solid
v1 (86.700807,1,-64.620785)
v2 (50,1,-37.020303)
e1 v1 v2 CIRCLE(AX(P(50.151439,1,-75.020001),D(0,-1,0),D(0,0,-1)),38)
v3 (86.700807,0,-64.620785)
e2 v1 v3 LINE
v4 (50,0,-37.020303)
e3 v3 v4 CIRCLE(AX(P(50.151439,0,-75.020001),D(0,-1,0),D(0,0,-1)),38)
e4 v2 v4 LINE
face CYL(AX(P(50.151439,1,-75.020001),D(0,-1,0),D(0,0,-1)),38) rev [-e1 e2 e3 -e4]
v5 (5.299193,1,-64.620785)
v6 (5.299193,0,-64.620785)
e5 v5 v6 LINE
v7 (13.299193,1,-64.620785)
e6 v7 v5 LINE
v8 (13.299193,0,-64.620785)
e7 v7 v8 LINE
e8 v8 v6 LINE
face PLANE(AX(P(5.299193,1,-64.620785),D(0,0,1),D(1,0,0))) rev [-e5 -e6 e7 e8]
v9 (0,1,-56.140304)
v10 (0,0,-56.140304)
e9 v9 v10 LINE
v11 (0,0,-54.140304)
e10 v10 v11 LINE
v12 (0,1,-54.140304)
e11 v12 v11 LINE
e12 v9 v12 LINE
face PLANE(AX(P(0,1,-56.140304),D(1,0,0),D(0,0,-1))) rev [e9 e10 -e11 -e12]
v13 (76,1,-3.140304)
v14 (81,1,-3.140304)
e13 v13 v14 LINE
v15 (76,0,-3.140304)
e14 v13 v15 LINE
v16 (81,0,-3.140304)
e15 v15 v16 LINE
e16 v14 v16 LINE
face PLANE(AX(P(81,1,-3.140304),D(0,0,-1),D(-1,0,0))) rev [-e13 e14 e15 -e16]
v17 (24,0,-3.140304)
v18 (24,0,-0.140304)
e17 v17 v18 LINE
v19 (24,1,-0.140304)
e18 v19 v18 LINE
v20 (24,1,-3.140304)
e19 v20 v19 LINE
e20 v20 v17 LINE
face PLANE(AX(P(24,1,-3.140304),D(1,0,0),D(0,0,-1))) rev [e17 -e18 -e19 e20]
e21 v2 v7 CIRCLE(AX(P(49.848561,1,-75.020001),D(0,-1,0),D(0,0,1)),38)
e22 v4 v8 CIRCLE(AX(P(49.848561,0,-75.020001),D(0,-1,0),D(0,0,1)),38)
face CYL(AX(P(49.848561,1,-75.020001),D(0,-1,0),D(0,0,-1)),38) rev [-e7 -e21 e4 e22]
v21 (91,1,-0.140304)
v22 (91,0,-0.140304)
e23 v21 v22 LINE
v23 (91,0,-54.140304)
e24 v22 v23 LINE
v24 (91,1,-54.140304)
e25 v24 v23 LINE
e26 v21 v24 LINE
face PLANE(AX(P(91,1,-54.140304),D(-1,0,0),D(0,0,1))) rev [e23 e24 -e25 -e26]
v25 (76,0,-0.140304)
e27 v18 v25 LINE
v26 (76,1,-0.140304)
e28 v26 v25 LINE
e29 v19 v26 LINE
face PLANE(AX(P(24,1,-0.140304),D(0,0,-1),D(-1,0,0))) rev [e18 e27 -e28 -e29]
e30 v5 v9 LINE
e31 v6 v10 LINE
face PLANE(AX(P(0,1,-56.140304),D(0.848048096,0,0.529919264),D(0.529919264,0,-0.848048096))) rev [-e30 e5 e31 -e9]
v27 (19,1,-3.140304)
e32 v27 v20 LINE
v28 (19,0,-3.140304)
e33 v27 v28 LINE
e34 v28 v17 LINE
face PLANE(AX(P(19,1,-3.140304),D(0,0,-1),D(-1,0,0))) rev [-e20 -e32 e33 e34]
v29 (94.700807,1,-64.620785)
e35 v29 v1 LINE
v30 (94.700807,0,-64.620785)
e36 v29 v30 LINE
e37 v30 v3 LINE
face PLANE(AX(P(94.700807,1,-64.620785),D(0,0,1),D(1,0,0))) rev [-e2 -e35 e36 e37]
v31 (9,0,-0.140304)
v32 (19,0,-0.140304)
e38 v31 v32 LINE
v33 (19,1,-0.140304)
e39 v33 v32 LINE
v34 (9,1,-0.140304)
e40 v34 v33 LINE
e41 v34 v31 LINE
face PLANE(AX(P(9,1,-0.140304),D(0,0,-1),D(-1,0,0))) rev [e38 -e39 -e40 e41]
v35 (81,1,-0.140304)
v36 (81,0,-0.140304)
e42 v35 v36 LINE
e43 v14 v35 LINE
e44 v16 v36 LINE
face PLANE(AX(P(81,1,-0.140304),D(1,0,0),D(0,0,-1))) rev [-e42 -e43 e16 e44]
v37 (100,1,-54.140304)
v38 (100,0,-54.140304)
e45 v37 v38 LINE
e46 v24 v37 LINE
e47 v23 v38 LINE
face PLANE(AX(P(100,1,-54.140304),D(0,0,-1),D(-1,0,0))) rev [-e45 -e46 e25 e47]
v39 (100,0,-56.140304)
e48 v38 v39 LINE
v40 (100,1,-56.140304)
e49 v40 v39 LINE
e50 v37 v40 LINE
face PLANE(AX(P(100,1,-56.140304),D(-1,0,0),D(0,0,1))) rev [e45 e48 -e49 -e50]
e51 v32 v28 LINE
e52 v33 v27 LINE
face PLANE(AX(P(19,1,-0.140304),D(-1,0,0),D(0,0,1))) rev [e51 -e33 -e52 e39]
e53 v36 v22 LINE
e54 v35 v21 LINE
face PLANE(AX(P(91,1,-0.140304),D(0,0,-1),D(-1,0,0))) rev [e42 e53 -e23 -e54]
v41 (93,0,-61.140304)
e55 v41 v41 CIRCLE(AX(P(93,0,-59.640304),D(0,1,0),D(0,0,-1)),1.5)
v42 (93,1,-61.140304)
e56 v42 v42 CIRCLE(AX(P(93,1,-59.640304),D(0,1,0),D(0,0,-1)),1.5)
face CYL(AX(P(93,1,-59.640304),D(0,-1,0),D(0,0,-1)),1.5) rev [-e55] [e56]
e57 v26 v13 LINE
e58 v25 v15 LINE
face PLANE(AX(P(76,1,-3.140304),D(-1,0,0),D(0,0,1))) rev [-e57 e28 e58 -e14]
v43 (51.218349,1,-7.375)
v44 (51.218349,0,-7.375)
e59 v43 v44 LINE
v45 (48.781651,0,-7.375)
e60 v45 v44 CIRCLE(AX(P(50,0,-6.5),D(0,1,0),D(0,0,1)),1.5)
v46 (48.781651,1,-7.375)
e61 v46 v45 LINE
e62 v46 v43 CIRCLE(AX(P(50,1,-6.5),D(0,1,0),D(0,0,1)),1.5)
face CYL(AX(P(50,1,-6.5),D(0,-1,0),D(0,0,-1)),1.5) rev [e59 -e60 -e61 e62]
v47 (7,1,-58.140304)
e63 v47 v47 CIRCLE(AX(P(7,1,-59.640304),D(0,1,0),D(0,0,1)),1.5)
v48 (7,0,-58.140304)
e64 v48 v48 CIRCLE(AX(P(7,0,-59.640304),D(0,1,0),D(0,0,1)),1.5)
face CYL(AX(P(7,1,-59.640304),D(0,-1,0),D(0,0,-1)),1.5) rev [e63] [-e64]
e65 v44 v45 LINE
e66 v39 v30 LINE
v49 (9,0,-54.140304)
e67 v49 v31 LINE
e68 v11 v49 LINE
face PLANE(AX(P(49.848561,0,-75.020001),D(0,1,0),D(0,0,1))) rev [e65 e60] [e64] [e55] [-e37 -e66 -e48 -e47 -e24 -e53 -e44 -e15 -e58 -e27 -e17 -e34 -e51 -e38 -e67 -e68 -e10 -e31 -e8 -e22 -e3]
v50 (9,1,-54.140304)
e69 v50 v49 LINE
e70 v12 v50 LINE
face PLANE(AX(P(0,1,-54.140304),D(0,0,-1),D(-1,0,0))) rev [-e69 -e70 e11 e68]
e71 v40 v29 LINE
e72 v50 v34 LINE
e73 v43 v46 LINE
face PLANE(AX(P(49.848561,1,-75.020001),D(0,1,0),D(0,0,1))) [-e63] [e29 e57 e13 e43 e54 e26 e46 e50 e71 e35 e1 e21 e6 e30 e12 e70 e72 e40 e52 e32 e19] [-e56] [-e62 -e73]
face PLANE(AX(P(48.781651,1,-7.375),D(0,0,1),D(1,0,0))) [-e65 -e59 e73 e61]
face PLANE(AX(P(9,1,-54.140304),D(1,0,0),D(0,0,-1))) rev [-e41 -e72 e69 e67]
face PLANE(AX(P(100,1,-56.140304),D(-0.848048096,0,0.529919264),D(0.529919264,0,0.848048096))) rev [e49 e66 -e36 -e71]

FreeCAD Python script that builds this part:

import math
import FreeCAD as App
import Part
import Sketcher
from FreeCAD import Vector
Q = App.Units.Quantity

doc = App.newDocument("Part")
body = doc.addObject("PartDesign::Body", "Body")

# Sketch on XZ plane
sketch1 = body.newObject("Sketcher::SketchObject", "Sketch")
sketch1.AttachmentSupport = (doc.getObject("XZ_Plane"), [""])
sketch1.MapMode = "FlatFace"
sketch1.addGeometry(Part.LineSegment(Vector(5.3, -64.6, 0), Vector(0, -56.1, 0)), False)
sketch1.addGeometry(Part.LineSegment(Vector(0, -56.1, 0), Vector(0, -54.1, 0)), False)
sketch1.addGeometry(Part.LineSegment(Vector(0, -54.1, 0), Vector(9, -54.1, 0)), False)
sketch1.addGeometry(Part.LineSegment(Vector(9, -54.1, 0), Vector(9, -0.1, 0)), False)
sketch1.addGeometry(Part.LineSegment(Vector(9, -0.1, 0), Vector(19, -0.1, 0)), False)
sketch1.addGeometry(Part.LineSegment(Vector(19, -0.1, 0), Vector(19, -3.1, 0)), False)
sketch1.addGeometry(Part.LineSegment(Vector(19, -3.1, 0), Vector(24, -3.1, 0)), False)
sketch1.addGeometry(Part.LineSegment(Vector(24, -3.1, 0), Vector(24, -0.1, 0)), False)
sketch1.addGeometry(Part.LineSegment(Vector(24, -0.1, 0), Vector(76, -0.1, 0)), False)
sketch1.addGeometry(Part.LineSegment(Vector(76, -0.1, 0), Vector(76, -3.1, 0)), False)
sketch1.addGeometry(Part.LineSegment(Vector(76, -3.1, 0), Vector(81, -3.1, 0)), False)
sketch1.addGeometry(Part.LineSegment(Vector(81, -3.1, 0), Vector(81, -0.1, 0)), False)
sketch1.addGeometry(Part.LineSegment(Vector(81, -0.1, 0), Vector(91, -0.1, 0)), False)
sketch1.addGeometry(Part.LineSegment(Vector(91, -0.1, 0), Vector(91, -54.1, 0)), False)
sketch1.addGeometry(Part.LineSegment(Vector(91, -54.1, 0), Vector(100, -54.1, 0)), False)
sketch1.addGeometry(Part.LineSegment(Vector(100, -54.1, 0), Vector(100, -56.1, 0)), False)
sketch1.addGeometry(Part.LineSegment(Vector(100, -56.1, 0), Vector(94.7, -64.6, 0)), False)
sketch1.addGeometry(Part.LineSegment(Vector(94.7, -64.6, 0), Vector(86.7, -64.6, 0)), False)
sketch1.addGeometry(Part.ArcOfCircle(Part.Circle(Vector(50.2, -75, 0), Vector(0, 0, 1), 38), math.radians(16), math.radians(90)), False)
sketch1.addGeometry(Part.ArcOfCircle(Part.Circle(Vector(49.8, -75, 0), Vector(0, 0, 1), 38), math.radians(90), math.radians(164)), False)
sketch1.addGeometry(Part.LineSegment(Vector(13.3, -64.6, 0), Vector(5.3, -64.6, 0)), False)
sketch1.addGeometry(Part.LineSegment(Vector(48.8, -7.4, 0), Vector(51.2, -7.4, 0)), False)
sketch1.addGeometry(Part.ArcOfCircle(Part.Circle(Vector(50, -6.5, 0), Vector(0, 0, 1), 1.5), math.radians(-36), math.radians(216)), False)
sketch1.addGeometry(Part.Circle(Vector(93, -59.6, 0), Vector(0, 0, 1), 1.5), False)
sketch1.addGeometry(Part.Circle(Vector(7, -59.6, 0), Vector(0, 0, 1), 1.5), False)
sketch1.addConstraint(Sketcher.Constraint("Coincident", 0, 2, 1, 1))
sketch1.addConstraint(Sketcher.Constraint("Coincident", 1, 2, 2, 1))
sketch1.addConstraint(Sketcher.Constraint("Coincident", 2, 2, 3, 1))
sketch1.addConstraint(Sketcher.Constraint("Coincident", 3, 2, 4, 1))
sketch1.addConstraint(Sketcher.Constraint("Coincident", 4, 2, 5, 1))
sketch1.addConstraint(Sketcher.Constraint("Coincident", 5, 2, 6, 1))
sketch1.addConstraint(Sketcher.Constraint("Coincident", 6, 2, 7, 1))
sketch1.addConstraint(Sketcher.Constraint("Coincident", 7, 2, 8, 1))
sketch1.addConstraint(Sketcher.Constraint("Coincident", 8, 2, 9, 1))
sketch1.addConstraint(Sketcher.Constraint("Coincident", 9, 2, 10, 1))
sketch1.addConstraint(Sketcher.Constraint("Coincident", 10, 2, 11, 1))
sketch1.addConstraint(Sketcher.Constraint("Coincident", 11, 2, 12, 1))
sketch1.addConstraint(Sketcher.Constraint("Coincident", 12, 2, 13, 1))
sketch1.addConstraint(Sketcher.Constraint("Coincident", 13, 2, 14, 1))
sketch1.addConstraint(Sketcher.Constraint("Coincident", 14, 2, 15, 1))
sketch1.addConstraint(Sketcher.Constraint("Coincident", 15, 2, 16, 1))
sketch1.addConstraint(Sketcher.Constraint("Coincident", 16, 2, 17, 1))
sketch1.addConstraint(Sketcher.Constraint("Coincident", 17, 2, 18, 1))
sketch1.addConstraint(Sketcher.Constraint("Coincident", 18, 2, 19, 1))
sketch1.addConstraint(Sketcher.Constraint("Coincident", 19, 2, 20, 1))
sketch1.addConstraint(Sketcher.Constraint("Coincident", 20, 2, 0, 1))
sketch1.addConstraint(Sketcher.Constraint("Coincident", 21, 1, 22, 2))
sketch1.addConstraint(Sketcher.Constraint("Coincident", 22, 1, 21, 2))
sketch1.addConstraint(Sketcher.Constraint("Vertical", 1))
sketch1.addConstraint(Sketcher.Constraint("Horizontal", 2))
sketch1.addConstraint(Sketcher.Constraint("Vertical", 3))
sketch1.addConstraint(Sketcher.Constraint("Horizontal", 4))
sketch1.addConstraint(Sketcher.Constraint("Vertical", 5))
sketch1.addConstraint(Sketcher.Constraint("Horizontal", 6))
sketch1.addConstraint(Sketcher.Constraint("Vertical", 7))
sketch1.addConstraint(Sketcher.Constraint("Horizontal", 8))
sketch1.addConstraint(Sketcher.Constraint("Vertical", 9))
sketch1.addConstraint(Sketcher.Constraint("Horizontal", 10))
sketch1.addConstraint(Sketcher.Constraint("Vertical", 11))
sketch1.addConstraint(Sketcher.Constraint("Horizontal", 12))
sketch1.addConstraint(Sketcher.Constraint("Vertical", 13))
sketch1.addConstraint(Sketcher.Constraint("Horizontal", 14))
sketch1.addConstraint(Sketcher.Constraint("Vertical", 15))
sketch1.addConstraint(Sketcher.Constraint("Horizontal", 17))
sketch1.addConstraint(Sketcher.Constraint("Horizontal", 20))
sketch1.addConstraint(Sketcher.Constraint("Horizontal", 21))
sketch1.addConstraint(Sketcher.Constraint("Equal", 18, 19))
sketch1.addConstraint(Sketcher.Constraint("Equal", 22, 23))
sketch1.addConstraint(Sketcher.Constraint("Equal", 23, 24))
sketch1.addConstraint(Sketcher.Constraint("PointOnObject", 0, 2, -2))
sketch1.addConstraint(Sketcher.Constraint("Horizontal", 18, 3, 19, 3))
sketch1.addConstraint(Sketcher.Constraint("Horizontal", 23, 3, 24, 3))
sketch1.addConstraint(Sketcher.Constraint("Horizontal", 4, 2, 7, 2))
sketch1.addConstraint(Sketcher.Constraint("Horizontal", 6, 2, 9, 2))
sketch1.addConstraint(Sketcher.Constraint("Horizontal", 8, 2, 11, 2))
sketch1.addConstraint(Sketcher.Constraint("Horizontal", 2, 2, 13, 2))
sketch1.addConstraint(Sketcher.Constraint("Horizontal", 0, 2, 15, 2))
sketch1.addConstraint(Sketcher.Constraint("Horizontal", 17, 2, 19, 2))
sketch1.addConstraint(Sketcher.Constraint("Vertical", 22, 3, 18, 2))
sketch1.addConstraint(Sketcher.Constraint("Equal", 6, 10))
sketch1.addConstraint(Sketcher.Constraint("Equal", 4, 12))
sketch1.addConstraint(Sketcher.Constraint("Equal", 2, 14))
sketch1.addConstraint(Sketcher.Constraint("Equal", 17, 20))
sketch1.addConstraint(Sketcher.Constraint("Equal", 0, 16))
sketch1.addConstraint(Sketcher.Constraint("Diameter", 23, 3.0))
sketch1.addConstraint(Sketcher.Constraint("Radius", 18, 38.0))
sketch1.addConstraint(Sketcher.Constraint("DistanceX", 2, 1, 2, 2, 9.0))
sketch1.addConstraint(Sketcher.Constraint("DistanceX", 4, 1, 4, 2, 10.0))
sketch1.addConstraint(Sketcher.Constraint("DistanceX", 6, 1, 6, 2, 5.0))
sketch1.addConstraint(Sketcher.Constraint("DistanceX", 8, 1, 8, 2, 52.0))
sketch1.addConstraint(Sketcher.Constraint("DistanceX", 17, 2, 17, 1, 8.0))
sketch1.addConstraint(Sketcher.Constraint("DistanceY", 1, 1, 1, 2, 2.0))
sketch1.addConstraint(Sketcher.Constraint("DistanceY", 3, 1, 3, 2, 54.0))
sketch1.addConstraint(Sketcher.Constraint("DistanceY", 5, 2, 5, 1, 3.0))
sketch1.addConstraint(Sketcher.Constraint("Angle", 0, Q("122 deg")))
sketch1.addConstraint(Sketcher.Constraint("Distance", 0, 10.0))
sketch1.addConstraint(Sketcher.Constraint("DistanceX", -1, 1, 23, 3, 93.0))
sketch1.addConstraint(Sketcher.Constraint("DistanceX", -1, 1, 24, 3, 7.0))
sketch1.addConstraint(Sketcher.Constraint("DistanceY", 22, 3, -1, 1, 6.5))
sketch1.addConstraint(Sketcher.Constraint("DistanceY", 24, 3, 0, 2, 3.5))
sketch1.addConstraint(Sketcher.Constraint("DistanceY", 18, 3, -1, 1, 75.020001))
sketch1.addConstraint(Sketcher.Constraint("DistanceY", 18, 2, 6, 2, 33.879999))
sketch1.addConstraint(Sketcher.Constraint("DistanceX", 21, 1, 21, 2, 2.436699))
pad1 = body.newObject("PartDesign::Pad", "Pad")
pad1.Profile = sketch1
pad1.Length = 1
pad1.Reversed = True

doc.recompute()
